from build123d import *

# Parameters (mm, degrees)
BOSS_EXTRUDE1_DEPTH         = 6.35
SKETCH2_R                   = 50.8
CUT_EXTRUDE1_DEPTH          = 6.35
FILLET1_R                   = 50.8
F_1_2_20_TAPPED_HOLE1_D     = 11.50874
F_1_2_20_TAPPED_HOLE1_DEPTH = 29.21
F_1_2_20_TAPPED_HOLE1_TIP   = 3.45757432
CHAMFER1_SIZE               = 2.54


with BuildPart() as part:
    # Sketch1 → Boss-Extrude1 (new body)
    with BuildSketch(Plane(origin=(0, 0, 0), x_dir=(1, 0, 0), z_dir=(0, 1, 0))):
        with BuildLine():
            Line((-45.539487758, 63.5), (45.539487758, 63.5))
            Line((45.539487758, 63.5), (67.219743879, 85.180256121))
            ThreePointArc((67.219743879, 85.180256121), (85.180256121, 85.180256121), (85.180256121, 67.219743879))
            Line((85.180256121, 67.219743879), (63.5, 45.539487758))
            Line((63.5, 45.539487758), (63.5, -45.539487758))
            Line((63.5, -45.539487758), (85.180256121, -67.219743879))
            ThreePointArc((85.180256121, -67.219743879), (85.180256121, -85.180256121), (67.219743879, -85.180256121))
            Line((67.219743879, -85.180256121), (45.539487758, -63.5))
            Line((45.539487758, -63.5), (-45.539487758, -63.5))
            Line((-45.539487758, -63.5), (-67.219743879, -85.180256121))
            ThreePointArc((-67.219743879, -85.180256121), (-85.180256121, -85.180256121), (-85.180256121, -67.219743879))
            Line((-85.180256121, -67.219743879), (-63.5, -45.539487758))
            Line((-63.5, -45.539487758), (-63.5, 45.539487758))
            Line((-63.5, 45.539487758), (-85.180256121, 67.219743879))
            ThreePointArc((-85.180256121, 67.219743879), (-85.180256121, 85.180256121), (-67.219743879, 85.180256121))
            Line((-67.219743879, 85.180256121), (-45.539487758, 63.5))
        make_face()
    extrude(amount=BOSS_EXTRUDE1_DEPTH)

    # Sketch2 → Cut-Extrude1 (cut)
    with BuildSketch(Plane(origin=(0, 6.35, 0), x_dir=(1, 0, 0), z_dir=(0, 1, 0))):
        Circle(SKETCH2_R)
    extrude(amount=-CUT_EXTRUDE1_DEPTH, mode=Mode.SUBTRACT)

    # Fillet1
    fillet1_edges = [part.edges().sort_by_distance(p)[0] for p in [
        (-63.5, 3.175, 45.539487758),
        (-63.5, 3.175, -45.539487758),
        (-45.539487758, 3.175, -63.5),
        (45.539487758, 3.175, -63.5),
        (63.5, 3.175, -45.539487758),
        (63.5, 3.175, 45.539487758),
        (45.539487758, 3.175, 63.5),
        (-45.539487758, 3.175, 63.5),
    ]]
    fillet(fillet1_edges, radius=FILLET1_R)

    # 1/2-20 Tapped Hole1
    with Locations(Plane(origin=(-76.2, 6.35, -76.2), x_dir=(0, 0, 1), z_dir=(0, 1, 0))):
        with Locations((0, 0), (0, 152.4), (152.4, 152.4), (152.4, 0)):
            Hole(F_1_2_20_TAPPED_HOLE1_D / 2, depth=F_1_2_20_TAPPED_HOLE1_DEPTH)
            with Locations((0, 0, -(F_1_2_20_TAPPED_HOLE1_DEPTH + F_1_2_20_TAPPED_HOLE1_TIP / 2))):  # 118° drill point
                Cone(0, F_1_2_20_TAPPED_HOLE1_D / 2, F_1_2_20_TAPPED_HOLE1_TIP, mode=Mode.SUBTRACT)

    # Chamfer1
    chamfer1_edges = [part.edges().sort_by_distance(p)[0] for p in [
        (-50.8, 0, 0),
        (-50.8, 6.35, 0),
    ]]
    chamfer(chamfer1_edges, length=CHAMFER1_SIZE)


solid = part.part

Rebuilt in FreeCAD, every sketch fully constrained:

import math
import FreeCAD as App
import Part
import Sketcher
Q = App.Units.Quantity


def edges_at(feature, points):
    """Names of the edges that pass closest to the given points."""
    edges = feature.Shape.Edges
    near = lambda p: min(range(len(edges)), key=lambda i: edges[i].distToShape(Part.Vertex(*p))[0])
    return sorted({f"Edge{near(p) + 1}" for p in points})

doc = App.newDocument("Part")
body = doc.addObject("PartDesign::Body", "Body")

sketch1 = body.newObject("Sketcher::SketchObject", "Sketch")
sketch1.AttachmentSupport = (doc.getObject("XZ_Plane"), [""])
sketch1.MapMode = "FlatFace"
sketch1.addGeometry([
    Part.LineSegment(App.Vector(45.539488, -63.5, 0), App.Vector(-45.539488, -63.5, 0)),
    Part.LineSegment(App.Vector(-45.539488, -63.5, 0), App.Vector(-67.219744, -85.180256, 0)),
    Part.ArcOfCircle(Part.Circle(App.Vector(-76.2, -76.2, 0), App.Vector(0, 0, 1), 12.7), math.radians(135), math.radians(315)),
    Part.LineSegment(App.Vector(-85.180256, -67.219744, 0), App.Vector(-63.5, -45.539488, 0)),
    Part.LineSegment(App.Vector(-63.5, -45.539488, 0), App.Vector(-63.5, 45.539488, 0)),
    Part.LineSegment(App.Vector(-63.5, 45.539488, 0), App.Vector(-85.180256, 67.219744, 0)),
    Part.ArcOfCircle(Part.Circle(App.Vector(-76.2, 76.2, 0), App.Vector(0, 0, 1), 12.7), math.radians(45), math.radians(225)),
    Part.LineSegment(App.Vector(-67.219744, 85.180256, 0), App.Vector(-45.539488, 63.5, 0)),
    Part.LineSegment(App.Vector(-45.539488, 63.5, 0), App.Vector(45.539488, 63.5, 0)),
    Part.LineSegment(App.Vector(45.539488, 63.5, 0), App.Vector(67.219744, 85.180256, 0)),
    Part.ArcOfCircle(Part.Circle(App.Vector(76.2, 76.2, 0), App.Vector(0, 0, 1), 12.7), math.radians(-45), math.radians(135)),
    Part.LineSegment(App.Vector(85.180256, 67.219744, 0), App.Vector(63.5, 45.539488, 0)),
    Part.LineSegment(App.Vector(63.5, 45.539488, 0), App.Vector(63.5, -45.539488, 0)),
    Part.LineSegment(App.Vector(63.5, -45.539488, 0), App.Vector(85.180256, -67.219744, 0)),
    Part.ArcOfCircle(Part.Circle(App.Vector(76.2, -76.2, 0), App.Vector(0, 0, 1), 12.7), math.radians(-135), math.radians(45)),
    Part.LineSegment(App.Vector(67.219744, -85.180256, 0), App.Vector(45.539488, -63.5, 0)),
], False)
sketch1.addConstraint([
    Sketcher.Constraint("Coincident", 0, 2, 1, 1),
    Sketcher.Constraint("Tangent", 1, 2, 2, 2),
    Sketcher.Constraint("Tangent", 2, 1, 3, 1),
    Sketcher.Constraint("Coincident", 3, 2, 4, 1),
    Sketcher.Constraint("Coincident", 4, 2, 5, 1),
    Sketcher.Constraint("Tangent", 5, 2, 6, 2),
    Sketcher.Constraint("Tangent", 6, 1, 7, 1),
    Sketcher.Constraint("Coincident", 7, 2, 8, 1),
    Sketcher.Constraint("Coincident", 8, 2, 9, 1),
    Sketcher.Constraint("Tangent", 9, 2, 10, 2),
    Sketcher.Constraint("Tangent", 10, 1, 11, 1),
    Sketcher.Constraint("Coincident", 11, 2, 12, 1),
    Sketcher.Constraint("Coincident", 12, 2, 13, 1),
    Sketcher.Constraint("Tangent", 13, 2, 14, 2),
    Sketcher.Constraint("Tangent", 14, 1, 15, 1),
    Sketcher.Constraint("Coincident", 15, 2, 0, 1),
    Sketcher.Constraint("Horizontal", 0),
    Sketcher.Constraint("Vertical", 4),
    Sketcher.Constraint("Horizontal", 8),
    Sketcher.Constraint("Vertical", 12),
    Sketcher.Constraint("Equal", 2, 6),
    Sketcher.Constraint("Equal", 6, 10),
    Sketcher.Constraint("Equal", 10, 14),
    Sketcher.Constraint("Symmetric", 2, 3, 10, 3, -1, 1),
    Sketcher.Constraint("Symmetric", 6, 3, 14, 3, -1, 1),
    Sketcher.Constraint("Symmetric", 0, 2, 8, 2, -1, 1),
    Sketcher.Constraint("Symmetric", 3, 2, 11, 2, -1, 1),
    Sketcher.Constraint("Symmetric", 6, 3, 10, 3, -2),
    Sketcher.Constraint("Parallel", 1, 3),
    Sketcher.Constraint("Perpendicular", 3, 5),
    Sketcher.Constraint("Parallel", 5, 7),
    Sketcher.Constraint("Perpendicular", 11, 13),
    Sketcher.Constraint("Parallel", 13, 15),
    Sketcher.Constraint("Horizontal", 6, 1, 9, 2),
    Sketcher.Constraint("Equal", 8, 4),
    Sketcher.Constraint("Equal", 1, 3),
    Sketcher.Constraint("Radius", 2, Q("0.5 in")),
    Sketcher.Constraint("DistanceX", 2, 3, -1, 1, Q("3 in")),
    Sketcher.Constraint("DistanceY", 0, 2, -1, 1, Q("2.5 in")),
])
pad1 = body.newObject("PartDesign::Pad", "Pad")
pad1.Profile = sketch1
pad1.Length = Q("0.25 in")
pad1.Reversed = True

sketch2 = body.newObject("Sketcher::SketchObject", "Sketch001")
sketch2.AttachmentSupport = (doc.getObject("XZ_Plane"), [""])
sketch2.MapMode = "FlatFace"
sketch2.AttachmentOffset = App.Placement(App.Vector(0, 0, -0.25 * 25.4), App.Rotation())
sketch2.addGeometry(Part.Circle(App.Vector(0, 0, 0), App.Vector(0, 0, 1), 50.8), False)
sketch2.addConstraint([
    Sketcher.Constraint("Coincident", 0, 3, -1, 1),
    Sketcher.Constraint("Diameter", 0, Q("4 in")),
])
pocket1 = body.newObject("PartDesign::Pocket", "Pocket")
pocket1.Profile = sketch2
pocket1.Length = Q("0.25 in")
pocket1.Reversed = True
doc.recompute()

fillet = body.newObject("PartDesign::Fillet", "Fillet")
fillet.Base = (pocket1, edges_at(pocket1, [
    (-63.5, 3.175, 45.539),
    (-63.5, 3.175, -45.539),
    (-45.539, 3.175, -63.5),
    (45.539, 3.175, -63.5),
    (63.5, 3.175, -45.539),
    (63.5, 3.175, 45.539),
    (45.539, 3.175, 63.5),
    (-45.539, 3.175, 63.5),
]))
fillet.Radius = Q("2 in")

sketch3 = body.newObject("Sketcher::SketchObject", "Sketch002")
sketch3.AttachmentSupport = (doc.getObject("XZ_Plane"), [""])
sketch3.MapMode = "FlatFace"
sketch3.AttachmentOffset = App.Placement(App.Vector(0, 0, -0.25 * 25.4), App.Rotation())
sketch3.addGeometry([
    Part.Circle(App.Vector(-76.2, -76.2, 0), App.Vector(0, 0, 1), 5.75437),
    Part.Circle(App.Vector(76.2, -76.2, 0), App.Vector(0, 0, 1), 5.75437),
    Part.Circle(App.Vector(76.2, 76.2, 0), App.Vector(0, 0, 1), 5.75437),
    Part.Circle(App.Vector(-76.2, 76.2, 0), App.Vector(0, 0, 1), 5.75437),
], False)
sketch3.addConstraint([
    Sketcher.Constraint("Equal", 0, 1),
    Sketcher.Constraint("Equal", 1, 2),
    Sketcher.Constraint("Equal", 2, 3),
    Sketcher.Constraint("Symmetric", 0, 3, 2, 3, -1, 1),
    Sketcher.Constraint("Symmetric", 1, 3, 3, 3, -1, 1),
    Sketcher.Constraint("Symmetric", 0, 3, 1, 3, -2),
    Sketcher.Constraint("DistanceX", 0, 3, -1, 1, Q("3 in")),
    Sketcher.Constraint("DistanceY", 0, 3, -1, 1, Q("3 in")),
    Sketcher.Constraint("Diameter", 0, Q("0.4531 in")),
])
doc.recompute()
hole = body.newObject("PartDesign::Hole", "Hole")
hole.Profile = sketch3
hole.ThreadType = "None"
hole.Diameter = Q("0.4531 in")
hole.DepthType = "Dimension"
hole.Depth = Q("1.15 in")
hole.DrillPoint = "Angled"
hole.DrillPointAngle = 118
hole.Reversed = True
doc.recompute()

chamfer = body.newObject("PartDesign::Chamfer", "Chamfer")
chamfer.Base = (hole, edges_at(hole, [(-50.8, 0, 0), (-50.8, 6.35, 0)]))
chamfer.Size = Q("0.1 in")

doc.recompute()
